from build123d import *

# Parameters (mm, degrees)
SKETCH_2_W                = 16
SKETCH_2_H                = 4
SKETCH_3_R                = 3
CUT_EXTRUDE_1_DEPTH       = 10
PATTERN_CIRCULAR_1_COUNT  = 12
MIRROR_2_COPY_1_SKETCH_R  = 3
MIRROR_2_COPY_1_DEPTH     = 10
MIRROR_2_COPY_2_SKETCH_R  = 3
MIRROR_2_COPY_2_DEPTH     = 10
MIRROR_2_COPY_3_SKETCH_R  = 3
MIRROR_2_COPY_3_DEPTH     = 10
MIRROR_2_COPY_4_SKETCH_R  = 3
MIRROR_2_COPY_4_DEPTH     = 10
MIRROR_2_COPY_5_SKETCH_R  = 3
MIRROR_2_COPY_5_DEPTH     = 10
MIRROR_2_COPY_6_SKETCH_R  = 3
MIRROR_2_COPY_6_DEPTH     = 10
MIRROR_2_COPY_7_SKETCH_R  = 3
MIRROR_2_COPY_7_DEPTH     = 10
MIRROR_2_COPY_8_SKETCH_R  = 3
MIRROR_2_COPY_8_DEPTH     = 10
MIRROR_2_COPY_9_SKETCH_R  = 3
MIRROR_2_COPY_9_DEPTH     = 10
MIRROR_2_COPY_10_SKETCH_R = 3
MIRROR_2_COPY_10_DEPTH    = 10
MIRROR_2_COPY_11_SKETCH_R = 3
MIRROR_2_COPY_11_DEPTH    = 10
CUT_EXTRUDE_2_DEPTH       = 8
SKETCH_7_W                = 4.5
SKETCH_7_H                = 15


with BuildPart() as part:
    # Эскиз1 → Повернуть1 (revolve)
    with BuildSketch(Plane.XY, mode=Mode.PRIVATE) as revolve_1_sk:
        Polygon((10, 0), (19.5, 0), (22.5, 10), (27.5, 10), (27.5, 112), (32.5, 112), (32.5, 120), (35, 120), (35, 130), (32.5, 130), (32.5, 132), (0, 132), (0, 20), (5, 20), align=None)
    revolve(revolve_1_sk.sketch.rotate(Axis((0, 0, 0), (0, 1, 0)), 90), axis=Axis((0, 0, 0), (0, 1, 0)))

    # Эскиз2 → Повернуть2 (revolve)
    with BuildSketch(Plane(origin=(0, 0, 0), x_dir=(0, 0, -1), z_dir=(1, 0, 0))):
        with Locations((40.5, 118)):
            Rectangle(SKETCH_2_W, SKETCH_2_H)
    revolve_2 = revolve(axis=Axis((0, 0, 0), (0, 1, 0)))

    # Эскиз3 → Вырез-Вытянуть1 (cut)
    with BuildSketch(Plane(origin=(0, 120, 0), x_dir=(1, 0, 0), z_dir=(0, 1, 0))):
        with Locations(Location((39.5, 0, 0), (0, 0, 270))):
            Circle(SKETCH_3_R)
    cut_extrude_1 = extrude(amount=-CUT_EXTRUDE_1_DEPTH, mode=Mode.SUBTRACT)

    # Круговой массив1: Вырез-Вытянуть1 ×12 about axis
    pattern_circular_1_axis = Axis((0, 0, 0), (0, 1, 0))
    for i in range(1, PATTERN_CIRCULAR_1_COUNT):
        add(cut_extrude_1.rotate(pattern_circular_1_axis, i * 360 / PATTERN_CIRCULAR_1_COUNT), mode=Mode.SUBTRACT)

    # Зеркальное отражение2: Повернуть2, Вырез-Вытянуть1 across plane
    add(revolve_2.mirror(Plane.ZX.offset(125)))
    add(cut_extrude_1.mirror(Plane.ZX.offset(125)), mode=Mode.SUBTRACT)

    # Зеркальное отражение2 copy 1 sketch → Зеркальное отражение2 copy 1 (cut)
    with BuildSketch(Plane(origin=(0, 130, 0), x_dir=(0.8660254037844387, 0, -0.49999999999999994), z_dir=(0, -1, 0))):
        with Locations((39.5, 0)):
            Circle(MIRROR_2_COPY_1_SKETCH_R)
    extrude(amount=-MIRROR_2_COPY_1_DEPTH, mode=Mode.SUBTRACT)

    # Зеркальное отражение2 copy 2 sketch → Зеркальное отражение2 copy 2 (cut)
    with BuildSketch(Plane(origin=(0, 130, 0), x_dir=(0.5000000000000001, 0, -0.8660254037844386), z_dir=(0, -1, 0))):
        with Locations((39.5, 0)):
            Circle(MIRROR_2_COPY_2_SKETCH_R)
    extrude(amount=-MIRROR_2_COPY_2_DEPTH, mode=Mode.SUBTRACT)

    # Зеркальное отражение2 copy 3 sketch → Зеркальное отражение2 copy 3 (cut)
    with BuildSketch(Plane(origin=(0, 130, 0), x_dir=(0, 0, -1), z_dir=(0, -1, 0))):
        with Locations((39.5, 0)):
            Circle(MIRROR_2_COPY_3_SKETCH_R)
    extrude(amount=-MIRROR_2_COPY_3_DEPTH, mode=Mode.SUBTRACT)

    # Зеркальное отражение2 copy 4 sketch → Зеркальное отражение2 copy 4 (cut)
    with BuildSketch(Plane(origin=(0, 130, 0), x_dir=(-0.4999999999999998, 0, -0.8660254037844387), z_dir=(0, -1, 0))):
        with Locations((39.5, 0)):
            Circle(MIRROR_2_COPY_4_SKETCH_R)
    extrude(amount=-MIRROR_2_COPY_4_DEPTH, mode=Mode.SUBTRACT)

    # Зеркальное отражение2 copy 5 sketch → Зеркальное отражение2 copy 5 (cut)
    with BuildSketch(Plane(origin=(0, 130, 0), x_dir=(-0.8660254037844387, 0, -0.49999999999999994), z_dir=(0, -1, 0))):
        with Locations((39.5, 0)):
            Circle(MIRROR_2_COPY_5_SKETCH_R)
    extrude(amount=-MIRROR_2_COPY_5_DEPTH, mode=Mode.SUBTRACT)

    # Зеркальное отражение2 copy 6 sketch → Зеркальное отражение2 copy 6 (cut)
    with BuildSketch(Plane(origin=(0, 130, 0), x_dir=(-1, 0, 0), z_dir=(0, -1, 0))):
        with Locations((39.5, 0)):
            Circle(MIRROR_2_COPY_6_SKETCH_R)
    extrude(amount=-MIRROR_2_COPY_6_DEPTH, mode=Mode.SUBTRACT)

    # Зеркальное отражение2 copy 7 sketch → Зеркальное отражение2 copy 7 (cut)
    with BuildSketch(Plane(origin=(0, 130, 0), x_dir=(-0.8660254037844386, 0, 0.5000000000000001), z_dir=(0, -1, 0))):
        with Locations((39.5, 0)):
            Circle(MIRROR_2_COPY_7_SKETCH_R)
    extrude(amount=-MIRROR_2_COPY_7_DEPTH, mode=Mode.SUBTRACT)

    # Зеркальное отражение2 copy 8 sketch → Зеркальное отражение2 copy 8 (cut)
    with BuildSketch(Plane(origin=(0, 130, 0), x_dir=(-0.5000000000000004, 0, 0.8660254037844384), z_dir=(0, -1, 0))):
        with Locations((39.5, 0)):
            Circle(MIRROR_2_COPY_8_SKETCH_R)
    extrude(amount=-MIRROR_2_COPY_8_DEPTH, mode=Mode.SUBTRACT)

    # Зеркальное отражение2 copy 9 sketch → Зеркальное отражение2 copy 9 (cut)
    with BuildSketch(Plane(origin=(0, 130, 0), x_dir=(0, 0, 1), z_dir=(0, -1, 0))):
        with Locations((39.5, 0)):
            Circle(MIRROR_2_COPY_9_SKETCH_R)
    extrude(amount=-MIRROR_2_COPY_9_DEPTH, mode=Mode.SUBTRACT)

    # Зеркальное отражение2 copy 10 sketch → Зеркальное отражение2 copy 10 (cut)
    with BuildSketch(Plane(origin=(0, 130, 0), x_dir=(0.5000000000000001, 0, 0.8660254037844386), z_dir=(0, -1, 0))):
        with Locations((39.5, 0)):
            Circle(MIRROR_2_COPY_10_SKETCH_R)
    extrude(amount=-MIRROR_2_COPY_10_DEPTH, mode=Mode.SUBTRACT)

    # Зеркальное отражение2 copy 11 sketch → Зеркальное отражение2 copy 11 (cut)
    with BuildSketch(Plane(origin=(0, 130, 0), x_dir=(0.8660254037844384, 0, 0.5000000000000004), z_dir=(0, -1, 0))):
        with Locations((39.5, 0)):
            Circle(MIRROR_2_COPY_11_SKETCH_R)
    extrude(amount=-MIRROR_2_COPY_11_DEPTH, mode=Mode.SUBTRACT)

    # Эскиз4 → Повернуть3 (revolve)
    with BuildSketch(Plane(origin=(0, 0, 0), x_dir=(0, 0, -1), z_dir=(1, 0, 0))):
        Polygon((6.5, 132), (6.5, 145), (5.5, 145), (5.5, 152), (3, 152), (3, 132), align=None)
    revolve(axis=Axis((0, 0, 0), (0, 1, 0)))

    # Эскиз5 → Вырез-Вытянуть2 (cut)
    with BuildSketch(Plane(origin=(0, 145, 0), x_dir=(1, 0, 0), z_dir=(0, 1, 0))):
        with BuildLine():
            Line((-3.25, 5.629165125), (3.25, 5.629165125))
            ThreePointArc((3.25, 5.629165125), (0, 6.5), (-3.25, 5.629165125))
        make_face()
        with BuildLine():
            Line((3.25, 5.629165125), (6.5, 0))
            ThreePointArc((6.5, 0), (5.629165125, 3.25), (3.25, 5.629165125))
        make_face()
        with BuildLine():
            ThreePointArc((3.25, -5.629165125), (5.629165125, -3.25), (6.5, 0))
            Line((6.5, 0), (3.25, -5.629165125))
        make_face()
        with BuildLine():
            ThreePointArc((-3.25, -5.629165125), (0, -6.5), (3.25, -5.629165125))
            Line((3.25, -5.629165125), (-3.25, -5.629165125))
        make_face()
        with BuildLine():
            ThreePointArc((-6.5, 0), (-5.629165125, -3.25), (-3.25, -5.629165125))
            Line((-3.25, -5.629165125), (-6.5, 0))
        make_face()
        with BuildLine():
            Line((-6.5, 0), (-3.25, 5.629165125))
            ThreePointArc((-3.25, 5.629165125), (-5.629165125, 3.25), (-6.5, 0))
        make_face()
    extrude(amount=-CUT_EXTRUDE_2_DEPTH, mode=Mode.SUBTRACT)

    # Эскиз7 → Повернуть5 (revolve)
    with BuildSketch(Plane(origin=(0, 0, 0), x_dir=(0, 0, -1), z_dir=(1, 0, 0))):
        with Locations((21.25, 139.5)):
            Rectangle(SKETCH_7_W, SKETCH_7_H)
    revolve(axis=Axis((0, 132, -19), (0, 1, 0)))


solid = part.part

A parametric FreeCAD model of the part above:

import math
import FreeCAD as App
import Part
import Sketcher
Q = App.Units.Quantity


def add_polygon(sketch, points):
    """Adds a closed chain of lines whose ends are joined by coincident constraints."""
    first, n = sketch.GeometryCount, len(points)
    for a, b in zip(points, points[1:] + points[:1]):
        sketch.addGeometry(Part.LineSegment(App.Vector(*a, 0), App.Vector(*b, 0)), False)
    for i in range(n):
        sketch.addConstraint(Sketcher.Constraint("Coincident", first + i, 2, first + (i + 1) % n, 1))

doc = App.newDocument("Part")
body = doc.addObject("PartDesign::Body", "Body")

sketch1 = doc.addObject("Sketcher::SketchObject", "Sketch")
body.addObject(sketch1)
sketch1.AttachmentSupport = (doc.XY_Plane, [""])
sketch1.MapMode = "FlatFace"
add_polygon(sketch1, [(10, 0), (19.5, 0), (22.5, 10), (27.5, 10), (27.5, 112), (32.5, 112), (32.5, 120), (35, 120), (35, 130), (32.5, 130), (32.5, 132), (0, 132), (0, 20), (5, 20)])
sketch1.addConstraint([
    Sketcher.Constraint("Horizontal", 0),
    Sketcher.Constraint("Horizontal", 2),
    Sketcher.Constraint("Vertical", 3),
    Sketcher.Constraint("Horizontal", 4),
    Sketcher.Constraint("Vertical", 5),
    Sketcher.Constraint("Horizontal", 6),
    Sketcher.Constraint("Vertical", 7),
    Sketcher.Constraint("Horizontal", 8),
    Sketcher.Constraint("Vertical", 9),
    Sketcher.Constraint("Horizontal", 10),
    Sketcher.Constraint("Vertical", 11),
    Sketcher.Constraint("Horizontal", 12),
    Sketcher.Constraint("PointOnObject", 0, 2, -1),
    Sketcher.Constraint("PointOnObject", 10, 2, -2),
    Sketcher.Constraint("Vertical", 5, 2, 8, 2),
    Sketcher.Constraint("Equal", 2, 4),
    Sketcher.Constraint("Equal", 4, 12),
    Sketcher.Constraint("DistanceX", 2, 1, 2, 2, Q("5 mm")),
    Sketcher.Constraint("DistanceY", 3, 1, 3, 2, Q("102 mm")),
    Sketcher.Constraint("DistanceY", 5, 1, 5, 2, Q("8 mm")),
    Sketcher.Constraint("DistanceY", 7, 1, 7, 2, Q("10 mm")),
    Sketcher.Constraint("DistanceY", 9, 1, 9, 2, Q("2 mm")),
    Sketcher.Constraint("DistanceY", 11, 2, 11, 1, Q("112 mm")),
    Sketcher.Constraint("DistanceX", 0, 1, 0, 2, Q("9.5 mm")),
    Sketcher.Constraint("DistanceX", 6, 1, 6, 2, Q("2.5 mm")),
    Sketcher.Constraint("DistanceX", 10, 2, 10, 1, Q("32.5 mm")),
    Sketcher.Constraint("DistanceY", -1, 1, 1, 2, Q("10 mm")),
    Sketcher.Constraint("DistanceX", -1, 1, 13, 2, Q("10 mm")),
])
revolution = doc.addObject("PartDesign::Revolution", "Revolution")
body.addObject(revolution)
revolution.Profile = sketch1
revolution.ReferenceAxis = (sketch1, ["V_Axis"])
revolution.Angle = 360

sketch2 = doc.addObject("Sketcher::SketchObject", "Sketch001")
body.addObject(sketch2)
sketch2.AttachmentSupport = (doc.YZ_Plane, [""])
sketch2.MapMode = "FlatFace"
add_polygon(sketch2, [(120, -32.5), (116, -32.5), (116, -48.5), (120, -48.5)])
sketch2.addConstraint([
    Sketcher.Constraint("Horizontal", 0),
    Sketcher.Constraint("Vertical", 1),
    Sketcher.Constraint("Horizontal", 2),
    Sketcher.Constraint("Vertical", 3),
    Sketcher.Constraint("DistanceX", 0, 2, 0, 1, Q("4 mm")),
    Sketcher.Constraint("DistanceY", 1, 2, 1, 1, Q("16 mm")),
    Sketcher.Constraint("DistanceX", -1, 1, 0, 2, Q("116 mm")),
    Sketcher.Constraint("DistanceY", 0, 2, -1, 1, Q("32.5 mm")),
])
revolution2 = doc.addObject("PartDesign::Revolution", "Revolution001")
body.addObject(revolution2)
revolution2.Profile = sketch2
revolution2.ReferenceAxis = (sketch2, ["H_Axis"])
revolution2.Angle = 360

sketch3 = doc.addObject("Sketcher::SketchObject", "Sketch002")
body.addObject(sketch3)
sketch3.AttachmentSupport = (doc.XZ_Plane, [""])
sketch3.MapMode = "FlatFace"
sketch3.AttachmentOffset = App.Placement(App.Vector(0, 0, -120), App.Rotation())
sketch3.addGeometry(Part.Circle(App.Vector(39.5, 0, 0), App.Vector(0, 0, 1), 3), False)
sketch3.addConstraint([
    Sketcher.Constraint("PointOnObject", 0, 3, -1),
    Sketcher.Constraint("Diameter", 0, Q("6 mm")),
    Sketcher.Constraint("DistanceX", -1, 1, 0, 3, Q("39.5 mm")),
])
pocket1 = doc.addObject("PartDesign::Pocket", "Pocket")
body.addObject(pocket1)
pocket1.Profile = sketch3
pocket1.Length = 10
pocket1.Reversed = True
doc.recompute()

polarpattern = doc.addObject("PartDesign::PolarPattern", "PolarPattern")
body.addObject(polarpattern)
polarpattern.Originals = [pocket1]
polarpattern.Axis = (doc.Y_Axis, [""])
polarpattern.Angle = 360
polarpattern.Occurrences = 12
body.Tip = polarpattern
doc.recompute()

datumplane = doc.addObject("PartDesign::Plane", "DatumPlane")
body.addObject(datumplane)
datumplane.AttachmentSupport = (doc.XZ_Plane, [""])
datumplane.MapMode = "FlatFace"
datumplane.AttachmentOffset = App.Placement(App.Vector(0, 0, -125), App.Rotation())
mirrored = doc.addObject("PartDesign::Mirrored", "Mirrored")
body.addObject(mirrored)
mirrored.Originals = [revolution2, pocket1]
mirrored.MirrorPlane = (datumplane, [""])
body.Tip = mirrored

sketch4 = doc.addObject("Sketcher::SketchObject", "Sketch003")
body.addObject(sketch4)
sketch4.AttachmentSupport = (doc.XZ_Plane, [""])
sketch4.MapMode = "FlatFace"
sketch4.AttachmentOffset = App.Placement(App.Vector(0, 0, -130), App.Rotation())
sketch4.addGeometry(Part.Circle(App.Vector(34.2, -19.8, 0), App.Vector(0, 0, 1), 3), False)
sketch4.addConstraint([
    Sketcher.Constraint("Diameter", 0, Q("6 mm")),
    Sketcher.Constraint("DistanceY", 0, 3, -1, 1, Q("19.75 mm")),
    Sketcher.Constraint("DistanceX", -1, 1, 0, 3, Q("34.208003 mm")),
])
pocket2 = doc.addObject("PartDesign::Pocket", "Pocket001")
body.addObject(pocket2)
pocket2.Profile = sketch4
pocket2.Length = 10

sketch5 = doc.addObject("Sketcher::SketchObject", "Sketch004")
body.addObject(sketch5)
sketch5.AttachmentSupport = (doc.XZ_Plane, [""])
sketch5.MapMode = "FlatFace"
sketch5.AttachmentOffset = App.Placement(App.Vector(0, 0, -130), App.Rotation())
sketch5.addGeometry(Part.Circle(App.Vector(19.8, -34.2, 0), App.Vector(0, 0, 1), 3), False)
sketch5.addConstraint([
    Sketcher.Constraint("Diameter", 0, Q("6 mm")),
    Sketcher.Constraint("DistanceX", -1, 1, 0, 3, Q("19.75 mm")),
    Sketcher.Constraint("DistanceY", 0, 3, -1, 1, Q("34.208003 mm")),
])
pocket3 = doc.addObject("PartDesign::Pocket", "Pocket002")
body.addObject(pocket3)
pocket3.Profile = sketch5
pocket3.Length = 10

sketch6 = doc.addObject("Sketcher::SketchObject", "Sketch005")
body.addObject(sketch6)
sketch6.AttachmentSupport = (doc.XZ_Plane, [""])
sketch6.MapMode = "FlatFace"
sketch6.AttachmentOffset = App.Placement(App.Vector(0, 0, -130), App.Rotation())
sketch6.addGeometry(Part.Circle(App.Vector(0, -39.5, 0), App.Vector(0, 0, 1), 3), False)
sketch6.addConstraint([
    Sketcher.Constraint("PointOnObject", 0, 3, -2),
    Sketcher.Constraint("Diameter", 0, Q("6 mm")),
    Sketcher.Constraint("DistanceY", 0, 3, -1, 1, Q("39.5 mm")),
])
pocket4 = doc.addObject("PartDesign::Pocket", "Pocket003")
body.addObject(pocket4)
pocket4.Profile = sketch6
pocket4.Length = 10

sketch7 = doc.addObject("Sketcher::SketchObject", "Sketch006")
body.addObject(sketch7)
sketch7.AttachmentSupport = (doc.XZ_Plane, [""])
sketch7.MapMode = "FlatFace"
sketch7.AttachmentOffset = App.Placement(App.Vector(0, 0, -130), App.Rotation())
sketch7.addGeometry(Part.Circle(App.Vector(-19.8, -34.2, 0), App.Vector(0, 0, 1), 3), False)
sketch7.addConstraint([
    Sketcher.Constraint("Diameter", 0, Q("6 mm")),
    Sketcher.Constraint("DistanceX", 0, 3, -1, 1, Q("19.75 mm")),
    Sketcher.Constraint("DistanceY", 0, 3, -1, 1, Q("34.208003 mm")),
])
pocket5 = doc.addObject("PartDesign::Pocket", "Pocket004")
body.addObject(pocket5)
pocket5.Profile = sketch7
pocket5.Length = 10

sketch8 = doc.addObject("Sketcher::SketchObject", "Sketch007")
body.addObject(sketch8)
sketch8.AttachmentSupport = (doc.XZ_Plane, [""])
sketch8.MapMode = "FlatFace"
sketch8.AttachmentOffset = App.Placement(App.Vector(0, 0, -130), App.Rotation())
sketch8.addGeometry(Part.Circle(App.Vector(-34.2, -19.8, 0), App.Vector(0, 0, 1), 3), False)
sketch8.addConstraint([
    Sketcher.Constraint("Diameter", 0, Q("6 mm")),
    Sketcher.Constraint("DistanceY", 0, 3, -1, 1, Q("19.75 mm")),
    Sketcher.Constraint("DistanceX", 0, 3, -1, 1, Q("34.208003 mm")),
])
pocket6 = doc.addObject("PartDesign::Pocket", "Pocket005")
body.addObject(pocket6)
pocket6.Profile = sketch8
pocket6.Length = 10

sketch9 = doc.addObject("Sketcher::SketchObject", "Sketch008")
body.addObject(sketch9)
sketch9.AttachmentSupport = (doc.XZ_Plane, [""])
sketch9.MapMode = "FlatFace"
sketch9.AttachmentOffset = App.Placement(App.Vector(0, 0, -130), App.Rotation())
sketch9.addGeometry(Part.Circle(App.Vector(-39.5, 0, 0), App.Vector(0, 0, 1), 3), False)
sketch9.addConstraint([
    Sketcher.Constraint("PointOnObject", 0, 3, -1),
    Sketcher.Constraint("Diameter", 0, Q("6 mm")),
    Sketcher.Constraint("DistanceX", 0, 3, -1, 1, Q("39.5 mm")),
])
pocket7 = doc.addObject("PartDesign::Pocket", "Pocket006")
body.addObject(pocket7)
pocket7.Profile = sketch9
pocket7.Length = 10

sketch10 = doc.addObject("Sketcher::SketchObject", "Sketch009")
body.addObject(sketch10)
sketch10.AttachmentSupport = (doc.XZ_Plane, [""])
sketch10.MapMode = "FlatFace"
sketch10.AttachmentOffset = App.Placement(App.Vector(0, 0, -130), App.Rotation())
sketch10.addGeometry(Part.Circle(App.Vector(-34.2, 19.8, 0), App.Vector(0, 0, 1), 3), False)
sketch10.addConstraint([
    Sketcher.Constraint("Diameter", 0, Q("6 mm")),
    Sketcher.Constraint("DistanceY", -1, 1, 0, 3, Q("19.75 mm")),
    Sketcher.Constraint("DistanceX", 0, 3, -1, 1, Q("34.208003 mm")),
])
pocket8 = doc.addObject("PartDesign::Pocket", "Pocket007")
body.addObject(pocket8)
pocket8.Profile = sketch10
pocket8.Length = 10

sketch11 = doc.addObject("Sketcher::SketchObject", "Sketch010")
body.addObject(sketch11)
sketch11.AttachmentSupport = (doc.XZ_Plane, [""])
sketch11.MapMode = "FlatFace"
sketch11.AttachmentOffset = App.Placement(App.Vector(0, 0, -130), App.Rotation())
sketch11.addGeometry(Part.Circle(App.Vector(-19.8, 34.2, 0), App.Vector(0, 0, 1), 3), False)
sketch11.addConstraint([
    Sketcher.Constraint("Diameter", 0, Q("6 mm")),
    Sketcher.Constraint("DistanceX", 0, 3, -1, 1, Q("19.75 mm")),
    Sketcher.Constraint("DistanceY", -1, 1, 0, 3, Q("34.208003 mm")),
])
pocket9 = doc.addObject("PartDesign::Pocket", "Pocket008")
body.addObject(pocket9)
pocket9.Profile = sketch11
pocket9.Length = 10

sketch12 = doc.addObject("Sketcher::SketchObject", "Sketch011")
body.addObject(sketch12)
sketch12.AttachmentSupport = (doc.XZ_Plane, [""])
sketch12.MapMode = "FlatFace"
sketch12.AttachmentOffset = App.Placement(App.Vector(0, 0, -130), App.Rotation())
sketch12.addGeometry(Part.Circle(App.Vector(0, 39.5, 0), App.Vector(0, 0, 1), 3), False)
sketch12.addConstraint([
    Sketcher.Constraint("PointOnObject", 0, 3, -2),
    Sketcher.Constraint("Diameter", 0, Q("6 mm")),
    Sketcher.Constraint("DistanceY", -1, 1, 0, 3, Q("39.5 mm")),
])
pocket10 = doc.addObject("PartDesign::Pocket", "Pocket009")
body.addObject(pocket10)
pocket10.Profile = sketch12
pocket10.Length = 10

sketch13 = doc.addObject("Sketcher::SketchObject", "Sketch012")
body.addObject(sketch13)
sketch13.AttachmentSupport = (doc.XZ_Plane, [""])
sketch13.MapMode = "FlatFace"
sketch13.AttachmentOffset = App.Placement(App.Vector(0, 0, -130), App.Rotation())
sketch13.addGeometry(Part.Circle(App.Vector(19.8, 34.2, 0), App.Vector(0, 0, 1), 3), False)
sketch13.addConstraint([
    Sketcher.Constraint("Diameter", 0, Q("6 mm")),
    Sketcher.Constraint("DistanceX", -1, 1, 0, 3, Q("19.75 mm")),
    Sketcher.Constraint("DistanceY", -1, 1, 0, 3, Q("34.208003 mm")),
])
pocket11 = doc.addObject("PartDesign::Pocket", "Pocket010")
body.addObject(pocket11)
pocket11.Profile = sketch13
pocket11.Length = 10

sketch14 = doc.addObject("Sketcher::SketchObject", "Sketch013")
body.addObject(sketch14)
sketch14.AttachmentSupport = (doc.XZ_Plane, [""])
sketch14.MapMode = "FlatFace"
sketch14.AttachmentOffset = App.Placement(App.Vector(0, 0, -130), App.Rotation())
sketch14.addGeometry(Part.Circle(App.Vector(34.2, 19.8, 0), App.Vector(0, 0, 1), 3), False)
sketch14.addConstraint([
    Sketcher.Constraint("Diameter", 0, Q("6 mm")),
    Sketcher.Constraint("DistanceY", -1, 1, 0, 3, Q("19.75 mm")),
    Sketcher.Constraint("DistanceX", -1, 1, 0, 3, Q("34.208003 mm")),
])
pocket12 = doc.addObject("PartDesign::Pocket", "Pocket011")
body.addObject(pocket12)
pocket12.Profile = sketch14
pocket12.Length = 10

sketch15 = doc.addObject("Sketcher::SketchObject", "Sketch014")
body.addObject(sketch15)
sketch15.AttachmentSupport = (doc.YZ_Plane, [""])
sketch15.MapMode = "FlatFace"
add_polygon(sketch15, [(132, -6.5), (145, -6.5), (145, -5.5), (152, -5.5), (152, -3), (132, -3)])
sketch15.addConstraint([
    Sketcher.Constraint("Horizontal", 0),
    Sketcher.Constraint("Vertical", 1),
    Sketcher.Constraint("Horizontal", 2),
    Sketcher.Constraint("Vertical", 3),
    Sketcher.Constraint("Horizontal", 4),
    Sketcher.Constraint("Vertical", 5),
    Sketcher.Constraint("DistanceX", 0, 1, 0, 2, Q("13 mm")),
    Sketcher.Constraint("DistanceX", 2, 1, 2, 2, Q("7 mm")),
    Sketcher.Constraint("DistanceY", 1, 1, 1, 2, Q("1 mm")),
    Sketcher.Constraint("DistanceY", 3, 1, 3, 2, Q("2.5 mm")),
    Sketcher.Constraint("DistanceX", -1, 1, 0, 2, Q("145 mm")),
    Sketcher.Constraint("DistanceY", 3, 2, -1, 1, Q("3 mm")),
])
revolution3 = doc.addObject("PartDesign::Revolution", "Revolution002")
body.addObject(revolution3)
revolution3.Profile = sketch15
revolution3.ReferenceAxis = (sketch15, ["H_Axis"])
revolution3.Angle = 360

sketch16 = doc.addObject("Sketcher::SketchObject", "Sketch015")
body.addObject(sketch16)
sketch16.AttachmentSupport = (doc.XZ_Plane, [""])
sketch16.MapMode = "FlatFace"
sketch16.AttachmentOffset = App.Placement(App.Vector(0, 0, -145), App.Rotation())
sketch16.addGeometry([
    Part.LineSegment(App.Vector(-3, -6, 0), App.Vector(3, -6, 0)),
    Part.ArcOfCircle(Part.Circle(App.Vector(0, 0, 0), App.Vector(0, 0, 1), 7), math.radians(-120), math.radians(-60)),
    Part.LineSegment(App.Vector(3, -6, 0), App.Vector(6, 0, 0)),
    Part.ArcOfCircle(Part.Circle(App.Vector(0, 0, 0), App.Vector(0, 0, 1), 6), math.radians(-60), math.radians(0)),
    Part.ArcOfCircle(Part.Circle(App.Vector(0, 0, 0), App.Vector(0, 0, 1), 6), math.radians(0), math.radians(60)),
    Part.LineSegment(App.Vector(6, 0, 0), App.Vector(3, 6, 0)),
    Part.ArcOfCircle(Part.Circle(App.Vector(0, 0, 0), App.Vector(0, 0, 1), 7), math.radians(60), math.radians(120)),
    Part.LineSegment(App.Vector(3, 6, 0), App.Vector(-3, 6, 0)),
    Part.ArcOfCircle(Part.Circle(App.Vector(0, 0, 0), App.Vector(0, 0, 1), 6), math.radians(120), math.radians(180)),
    Part.LineSegment(App.Vector(-3, 6, 0), App.Vector(-6, 0, 0)),
    Part.LineSegment(App.Vector(-6, 0, 0), App.Vector(-3, -6, 0)),
    Part.ArcOfCircle(Part.Circle(App.Vector(0, 0, 0), App.Vector(0, 0, 1), 6), math.radians(180), math.radians(240)),
], False)
sketch16.addConstraint([
    Sketcher.Constraint("Coincident", 0, 1, 1, 1),
    Sketcher.Constraint("Coincident", 1, 2, 0, 2),
    Sketcher.Constraint("Coincident", 2, 1, 3, 1),
    Sketcher.Constraint("Coincident", 3, 2, 2, 2),
    Sketcher.Constraint("Coincident", 4, 1, 5, 1),
    Sketcher.Constraint("Coincident", 5, 2, 4, 2),
    Sketcher.Constraint("Coincident", 6, 1, 7, 1),
    Sketcher.Constraint("Coincident", 7, 2, 6, 2),
    Sketcher.Constraint("Coincident", 8, 1, 9, 1),
    Sketcher.Constraint("Coincident", 9, 2, 8, 2),
    Sketcher.Constraint("Coincident", 10, 1, 11, 1),
    Sketcher.Constraint("Coincident", 11, 2, 10, 2),
    Sketcher.Constraint("Horizontal", 0),
    Sketcher.Constraint("Horizontal", 7),
    Sketcher.Constraint("Coincident", 1, 3, -1, 1),
    Sketcher.Constraint("Coincident", 3, 3, -1, 1),
    Sketcher.Constraint("Coincident", 4, 3, -1, 1),
    Sketcher.Constraint("Coincident", 6, 3, -1, 1),
    Sketcher.Constraint("Coincident", 8, 3, -1, 1),
    Sketcher.Constraint("Coincident", 11, 3, -1, 1),
    Sketcher.Constraint("Coincident", 2, 1, 1, 2),
    Sketcher.Constraint("Coincident", 4, 1, 3, 2),
    Sketcher.Constraint("Coincident", 6, 1, 5, 2),
    Sketcher.Constraint("Coincident", 8, 1, 7, 2),
    Sketcher.Constraint("Coincident", 10, 1, 9, 2),
    Sketcher.Constraint("PointOnObject", 3, 2, -1),
    Sketcher.Constraint("PointOnObject", 9, 2, -1),
    Sketcher.Constraint("Parallel", 2, 9),
    Sketcher.Constraint("Parallel", 5, 10),
    Sketcher.Constraint("Radius", 1, Q("6.5 mm")),
    Sketcher.Constraint("Angle", 2, Q("60 deg")),
])
pocket13 = doc.addObject("PartDesign::Pocket", "Pocket012")
body.addObject(pocket13)
pocket13.Profile = sketch16
pocket13.Length = 8
pocket13.Reversed = True

sketch17 = doc.addObject("Sketcher::SketchObject", "Sketch016")
body.addObject(sketch17)
sketch17.AttachmentSupport = (doc.YZ_Plane, [""])
sketch17.MapMode = "FlatFace"
add_polygon(sketch17, [(147, -19), (132, -19), (132, -23.5), (147, -23.5)])
sketch17.addGeometry(Part.LineSegment(App.Vector(132, -19, 0), App.Vector(147, -19, 0)), True)
sketch17.addConstraint([
    Sketcher.Constraint("Horizontal", 0),
    Sketcher.Constraint("Vertical", 1),
    Sketcher.Constraint("Horizontal", 2),
    Sketcher.Constraint("Vertical", 3),
    Sketcher.Constraint("Horizontal", 4),
    Sketcher.Constraint("Coincident", 4, 1, 0, 2),
    Sketcher.Constraint("Vertical", 2, 2, 4, 2),
    Sketcher.Constraint("DistanceX", 0, 2, 0, 1, Q("15 mm")),
    Sketcher.Constraint("DistanceY", 1, 2, 1, 1, Q("4.5 mm")),
    Sketcher.Constraint("DistanceX", -1, 1, 0, 2, Q("132 mm")),
    Sketcher.Constraint("DistanceY", 0, 2, -1, 1, Q("19 mm")),
])
revolution4 = doc.addObject("PartDesign::Revolution", "Revolution003")
body.addObject(revolution4)
revolution4.Profile = sketch17
revolution4.ReferenceAxis = (sketch17, ["Axis0"])
revolution4.Angle = 360

doc.recompute()
